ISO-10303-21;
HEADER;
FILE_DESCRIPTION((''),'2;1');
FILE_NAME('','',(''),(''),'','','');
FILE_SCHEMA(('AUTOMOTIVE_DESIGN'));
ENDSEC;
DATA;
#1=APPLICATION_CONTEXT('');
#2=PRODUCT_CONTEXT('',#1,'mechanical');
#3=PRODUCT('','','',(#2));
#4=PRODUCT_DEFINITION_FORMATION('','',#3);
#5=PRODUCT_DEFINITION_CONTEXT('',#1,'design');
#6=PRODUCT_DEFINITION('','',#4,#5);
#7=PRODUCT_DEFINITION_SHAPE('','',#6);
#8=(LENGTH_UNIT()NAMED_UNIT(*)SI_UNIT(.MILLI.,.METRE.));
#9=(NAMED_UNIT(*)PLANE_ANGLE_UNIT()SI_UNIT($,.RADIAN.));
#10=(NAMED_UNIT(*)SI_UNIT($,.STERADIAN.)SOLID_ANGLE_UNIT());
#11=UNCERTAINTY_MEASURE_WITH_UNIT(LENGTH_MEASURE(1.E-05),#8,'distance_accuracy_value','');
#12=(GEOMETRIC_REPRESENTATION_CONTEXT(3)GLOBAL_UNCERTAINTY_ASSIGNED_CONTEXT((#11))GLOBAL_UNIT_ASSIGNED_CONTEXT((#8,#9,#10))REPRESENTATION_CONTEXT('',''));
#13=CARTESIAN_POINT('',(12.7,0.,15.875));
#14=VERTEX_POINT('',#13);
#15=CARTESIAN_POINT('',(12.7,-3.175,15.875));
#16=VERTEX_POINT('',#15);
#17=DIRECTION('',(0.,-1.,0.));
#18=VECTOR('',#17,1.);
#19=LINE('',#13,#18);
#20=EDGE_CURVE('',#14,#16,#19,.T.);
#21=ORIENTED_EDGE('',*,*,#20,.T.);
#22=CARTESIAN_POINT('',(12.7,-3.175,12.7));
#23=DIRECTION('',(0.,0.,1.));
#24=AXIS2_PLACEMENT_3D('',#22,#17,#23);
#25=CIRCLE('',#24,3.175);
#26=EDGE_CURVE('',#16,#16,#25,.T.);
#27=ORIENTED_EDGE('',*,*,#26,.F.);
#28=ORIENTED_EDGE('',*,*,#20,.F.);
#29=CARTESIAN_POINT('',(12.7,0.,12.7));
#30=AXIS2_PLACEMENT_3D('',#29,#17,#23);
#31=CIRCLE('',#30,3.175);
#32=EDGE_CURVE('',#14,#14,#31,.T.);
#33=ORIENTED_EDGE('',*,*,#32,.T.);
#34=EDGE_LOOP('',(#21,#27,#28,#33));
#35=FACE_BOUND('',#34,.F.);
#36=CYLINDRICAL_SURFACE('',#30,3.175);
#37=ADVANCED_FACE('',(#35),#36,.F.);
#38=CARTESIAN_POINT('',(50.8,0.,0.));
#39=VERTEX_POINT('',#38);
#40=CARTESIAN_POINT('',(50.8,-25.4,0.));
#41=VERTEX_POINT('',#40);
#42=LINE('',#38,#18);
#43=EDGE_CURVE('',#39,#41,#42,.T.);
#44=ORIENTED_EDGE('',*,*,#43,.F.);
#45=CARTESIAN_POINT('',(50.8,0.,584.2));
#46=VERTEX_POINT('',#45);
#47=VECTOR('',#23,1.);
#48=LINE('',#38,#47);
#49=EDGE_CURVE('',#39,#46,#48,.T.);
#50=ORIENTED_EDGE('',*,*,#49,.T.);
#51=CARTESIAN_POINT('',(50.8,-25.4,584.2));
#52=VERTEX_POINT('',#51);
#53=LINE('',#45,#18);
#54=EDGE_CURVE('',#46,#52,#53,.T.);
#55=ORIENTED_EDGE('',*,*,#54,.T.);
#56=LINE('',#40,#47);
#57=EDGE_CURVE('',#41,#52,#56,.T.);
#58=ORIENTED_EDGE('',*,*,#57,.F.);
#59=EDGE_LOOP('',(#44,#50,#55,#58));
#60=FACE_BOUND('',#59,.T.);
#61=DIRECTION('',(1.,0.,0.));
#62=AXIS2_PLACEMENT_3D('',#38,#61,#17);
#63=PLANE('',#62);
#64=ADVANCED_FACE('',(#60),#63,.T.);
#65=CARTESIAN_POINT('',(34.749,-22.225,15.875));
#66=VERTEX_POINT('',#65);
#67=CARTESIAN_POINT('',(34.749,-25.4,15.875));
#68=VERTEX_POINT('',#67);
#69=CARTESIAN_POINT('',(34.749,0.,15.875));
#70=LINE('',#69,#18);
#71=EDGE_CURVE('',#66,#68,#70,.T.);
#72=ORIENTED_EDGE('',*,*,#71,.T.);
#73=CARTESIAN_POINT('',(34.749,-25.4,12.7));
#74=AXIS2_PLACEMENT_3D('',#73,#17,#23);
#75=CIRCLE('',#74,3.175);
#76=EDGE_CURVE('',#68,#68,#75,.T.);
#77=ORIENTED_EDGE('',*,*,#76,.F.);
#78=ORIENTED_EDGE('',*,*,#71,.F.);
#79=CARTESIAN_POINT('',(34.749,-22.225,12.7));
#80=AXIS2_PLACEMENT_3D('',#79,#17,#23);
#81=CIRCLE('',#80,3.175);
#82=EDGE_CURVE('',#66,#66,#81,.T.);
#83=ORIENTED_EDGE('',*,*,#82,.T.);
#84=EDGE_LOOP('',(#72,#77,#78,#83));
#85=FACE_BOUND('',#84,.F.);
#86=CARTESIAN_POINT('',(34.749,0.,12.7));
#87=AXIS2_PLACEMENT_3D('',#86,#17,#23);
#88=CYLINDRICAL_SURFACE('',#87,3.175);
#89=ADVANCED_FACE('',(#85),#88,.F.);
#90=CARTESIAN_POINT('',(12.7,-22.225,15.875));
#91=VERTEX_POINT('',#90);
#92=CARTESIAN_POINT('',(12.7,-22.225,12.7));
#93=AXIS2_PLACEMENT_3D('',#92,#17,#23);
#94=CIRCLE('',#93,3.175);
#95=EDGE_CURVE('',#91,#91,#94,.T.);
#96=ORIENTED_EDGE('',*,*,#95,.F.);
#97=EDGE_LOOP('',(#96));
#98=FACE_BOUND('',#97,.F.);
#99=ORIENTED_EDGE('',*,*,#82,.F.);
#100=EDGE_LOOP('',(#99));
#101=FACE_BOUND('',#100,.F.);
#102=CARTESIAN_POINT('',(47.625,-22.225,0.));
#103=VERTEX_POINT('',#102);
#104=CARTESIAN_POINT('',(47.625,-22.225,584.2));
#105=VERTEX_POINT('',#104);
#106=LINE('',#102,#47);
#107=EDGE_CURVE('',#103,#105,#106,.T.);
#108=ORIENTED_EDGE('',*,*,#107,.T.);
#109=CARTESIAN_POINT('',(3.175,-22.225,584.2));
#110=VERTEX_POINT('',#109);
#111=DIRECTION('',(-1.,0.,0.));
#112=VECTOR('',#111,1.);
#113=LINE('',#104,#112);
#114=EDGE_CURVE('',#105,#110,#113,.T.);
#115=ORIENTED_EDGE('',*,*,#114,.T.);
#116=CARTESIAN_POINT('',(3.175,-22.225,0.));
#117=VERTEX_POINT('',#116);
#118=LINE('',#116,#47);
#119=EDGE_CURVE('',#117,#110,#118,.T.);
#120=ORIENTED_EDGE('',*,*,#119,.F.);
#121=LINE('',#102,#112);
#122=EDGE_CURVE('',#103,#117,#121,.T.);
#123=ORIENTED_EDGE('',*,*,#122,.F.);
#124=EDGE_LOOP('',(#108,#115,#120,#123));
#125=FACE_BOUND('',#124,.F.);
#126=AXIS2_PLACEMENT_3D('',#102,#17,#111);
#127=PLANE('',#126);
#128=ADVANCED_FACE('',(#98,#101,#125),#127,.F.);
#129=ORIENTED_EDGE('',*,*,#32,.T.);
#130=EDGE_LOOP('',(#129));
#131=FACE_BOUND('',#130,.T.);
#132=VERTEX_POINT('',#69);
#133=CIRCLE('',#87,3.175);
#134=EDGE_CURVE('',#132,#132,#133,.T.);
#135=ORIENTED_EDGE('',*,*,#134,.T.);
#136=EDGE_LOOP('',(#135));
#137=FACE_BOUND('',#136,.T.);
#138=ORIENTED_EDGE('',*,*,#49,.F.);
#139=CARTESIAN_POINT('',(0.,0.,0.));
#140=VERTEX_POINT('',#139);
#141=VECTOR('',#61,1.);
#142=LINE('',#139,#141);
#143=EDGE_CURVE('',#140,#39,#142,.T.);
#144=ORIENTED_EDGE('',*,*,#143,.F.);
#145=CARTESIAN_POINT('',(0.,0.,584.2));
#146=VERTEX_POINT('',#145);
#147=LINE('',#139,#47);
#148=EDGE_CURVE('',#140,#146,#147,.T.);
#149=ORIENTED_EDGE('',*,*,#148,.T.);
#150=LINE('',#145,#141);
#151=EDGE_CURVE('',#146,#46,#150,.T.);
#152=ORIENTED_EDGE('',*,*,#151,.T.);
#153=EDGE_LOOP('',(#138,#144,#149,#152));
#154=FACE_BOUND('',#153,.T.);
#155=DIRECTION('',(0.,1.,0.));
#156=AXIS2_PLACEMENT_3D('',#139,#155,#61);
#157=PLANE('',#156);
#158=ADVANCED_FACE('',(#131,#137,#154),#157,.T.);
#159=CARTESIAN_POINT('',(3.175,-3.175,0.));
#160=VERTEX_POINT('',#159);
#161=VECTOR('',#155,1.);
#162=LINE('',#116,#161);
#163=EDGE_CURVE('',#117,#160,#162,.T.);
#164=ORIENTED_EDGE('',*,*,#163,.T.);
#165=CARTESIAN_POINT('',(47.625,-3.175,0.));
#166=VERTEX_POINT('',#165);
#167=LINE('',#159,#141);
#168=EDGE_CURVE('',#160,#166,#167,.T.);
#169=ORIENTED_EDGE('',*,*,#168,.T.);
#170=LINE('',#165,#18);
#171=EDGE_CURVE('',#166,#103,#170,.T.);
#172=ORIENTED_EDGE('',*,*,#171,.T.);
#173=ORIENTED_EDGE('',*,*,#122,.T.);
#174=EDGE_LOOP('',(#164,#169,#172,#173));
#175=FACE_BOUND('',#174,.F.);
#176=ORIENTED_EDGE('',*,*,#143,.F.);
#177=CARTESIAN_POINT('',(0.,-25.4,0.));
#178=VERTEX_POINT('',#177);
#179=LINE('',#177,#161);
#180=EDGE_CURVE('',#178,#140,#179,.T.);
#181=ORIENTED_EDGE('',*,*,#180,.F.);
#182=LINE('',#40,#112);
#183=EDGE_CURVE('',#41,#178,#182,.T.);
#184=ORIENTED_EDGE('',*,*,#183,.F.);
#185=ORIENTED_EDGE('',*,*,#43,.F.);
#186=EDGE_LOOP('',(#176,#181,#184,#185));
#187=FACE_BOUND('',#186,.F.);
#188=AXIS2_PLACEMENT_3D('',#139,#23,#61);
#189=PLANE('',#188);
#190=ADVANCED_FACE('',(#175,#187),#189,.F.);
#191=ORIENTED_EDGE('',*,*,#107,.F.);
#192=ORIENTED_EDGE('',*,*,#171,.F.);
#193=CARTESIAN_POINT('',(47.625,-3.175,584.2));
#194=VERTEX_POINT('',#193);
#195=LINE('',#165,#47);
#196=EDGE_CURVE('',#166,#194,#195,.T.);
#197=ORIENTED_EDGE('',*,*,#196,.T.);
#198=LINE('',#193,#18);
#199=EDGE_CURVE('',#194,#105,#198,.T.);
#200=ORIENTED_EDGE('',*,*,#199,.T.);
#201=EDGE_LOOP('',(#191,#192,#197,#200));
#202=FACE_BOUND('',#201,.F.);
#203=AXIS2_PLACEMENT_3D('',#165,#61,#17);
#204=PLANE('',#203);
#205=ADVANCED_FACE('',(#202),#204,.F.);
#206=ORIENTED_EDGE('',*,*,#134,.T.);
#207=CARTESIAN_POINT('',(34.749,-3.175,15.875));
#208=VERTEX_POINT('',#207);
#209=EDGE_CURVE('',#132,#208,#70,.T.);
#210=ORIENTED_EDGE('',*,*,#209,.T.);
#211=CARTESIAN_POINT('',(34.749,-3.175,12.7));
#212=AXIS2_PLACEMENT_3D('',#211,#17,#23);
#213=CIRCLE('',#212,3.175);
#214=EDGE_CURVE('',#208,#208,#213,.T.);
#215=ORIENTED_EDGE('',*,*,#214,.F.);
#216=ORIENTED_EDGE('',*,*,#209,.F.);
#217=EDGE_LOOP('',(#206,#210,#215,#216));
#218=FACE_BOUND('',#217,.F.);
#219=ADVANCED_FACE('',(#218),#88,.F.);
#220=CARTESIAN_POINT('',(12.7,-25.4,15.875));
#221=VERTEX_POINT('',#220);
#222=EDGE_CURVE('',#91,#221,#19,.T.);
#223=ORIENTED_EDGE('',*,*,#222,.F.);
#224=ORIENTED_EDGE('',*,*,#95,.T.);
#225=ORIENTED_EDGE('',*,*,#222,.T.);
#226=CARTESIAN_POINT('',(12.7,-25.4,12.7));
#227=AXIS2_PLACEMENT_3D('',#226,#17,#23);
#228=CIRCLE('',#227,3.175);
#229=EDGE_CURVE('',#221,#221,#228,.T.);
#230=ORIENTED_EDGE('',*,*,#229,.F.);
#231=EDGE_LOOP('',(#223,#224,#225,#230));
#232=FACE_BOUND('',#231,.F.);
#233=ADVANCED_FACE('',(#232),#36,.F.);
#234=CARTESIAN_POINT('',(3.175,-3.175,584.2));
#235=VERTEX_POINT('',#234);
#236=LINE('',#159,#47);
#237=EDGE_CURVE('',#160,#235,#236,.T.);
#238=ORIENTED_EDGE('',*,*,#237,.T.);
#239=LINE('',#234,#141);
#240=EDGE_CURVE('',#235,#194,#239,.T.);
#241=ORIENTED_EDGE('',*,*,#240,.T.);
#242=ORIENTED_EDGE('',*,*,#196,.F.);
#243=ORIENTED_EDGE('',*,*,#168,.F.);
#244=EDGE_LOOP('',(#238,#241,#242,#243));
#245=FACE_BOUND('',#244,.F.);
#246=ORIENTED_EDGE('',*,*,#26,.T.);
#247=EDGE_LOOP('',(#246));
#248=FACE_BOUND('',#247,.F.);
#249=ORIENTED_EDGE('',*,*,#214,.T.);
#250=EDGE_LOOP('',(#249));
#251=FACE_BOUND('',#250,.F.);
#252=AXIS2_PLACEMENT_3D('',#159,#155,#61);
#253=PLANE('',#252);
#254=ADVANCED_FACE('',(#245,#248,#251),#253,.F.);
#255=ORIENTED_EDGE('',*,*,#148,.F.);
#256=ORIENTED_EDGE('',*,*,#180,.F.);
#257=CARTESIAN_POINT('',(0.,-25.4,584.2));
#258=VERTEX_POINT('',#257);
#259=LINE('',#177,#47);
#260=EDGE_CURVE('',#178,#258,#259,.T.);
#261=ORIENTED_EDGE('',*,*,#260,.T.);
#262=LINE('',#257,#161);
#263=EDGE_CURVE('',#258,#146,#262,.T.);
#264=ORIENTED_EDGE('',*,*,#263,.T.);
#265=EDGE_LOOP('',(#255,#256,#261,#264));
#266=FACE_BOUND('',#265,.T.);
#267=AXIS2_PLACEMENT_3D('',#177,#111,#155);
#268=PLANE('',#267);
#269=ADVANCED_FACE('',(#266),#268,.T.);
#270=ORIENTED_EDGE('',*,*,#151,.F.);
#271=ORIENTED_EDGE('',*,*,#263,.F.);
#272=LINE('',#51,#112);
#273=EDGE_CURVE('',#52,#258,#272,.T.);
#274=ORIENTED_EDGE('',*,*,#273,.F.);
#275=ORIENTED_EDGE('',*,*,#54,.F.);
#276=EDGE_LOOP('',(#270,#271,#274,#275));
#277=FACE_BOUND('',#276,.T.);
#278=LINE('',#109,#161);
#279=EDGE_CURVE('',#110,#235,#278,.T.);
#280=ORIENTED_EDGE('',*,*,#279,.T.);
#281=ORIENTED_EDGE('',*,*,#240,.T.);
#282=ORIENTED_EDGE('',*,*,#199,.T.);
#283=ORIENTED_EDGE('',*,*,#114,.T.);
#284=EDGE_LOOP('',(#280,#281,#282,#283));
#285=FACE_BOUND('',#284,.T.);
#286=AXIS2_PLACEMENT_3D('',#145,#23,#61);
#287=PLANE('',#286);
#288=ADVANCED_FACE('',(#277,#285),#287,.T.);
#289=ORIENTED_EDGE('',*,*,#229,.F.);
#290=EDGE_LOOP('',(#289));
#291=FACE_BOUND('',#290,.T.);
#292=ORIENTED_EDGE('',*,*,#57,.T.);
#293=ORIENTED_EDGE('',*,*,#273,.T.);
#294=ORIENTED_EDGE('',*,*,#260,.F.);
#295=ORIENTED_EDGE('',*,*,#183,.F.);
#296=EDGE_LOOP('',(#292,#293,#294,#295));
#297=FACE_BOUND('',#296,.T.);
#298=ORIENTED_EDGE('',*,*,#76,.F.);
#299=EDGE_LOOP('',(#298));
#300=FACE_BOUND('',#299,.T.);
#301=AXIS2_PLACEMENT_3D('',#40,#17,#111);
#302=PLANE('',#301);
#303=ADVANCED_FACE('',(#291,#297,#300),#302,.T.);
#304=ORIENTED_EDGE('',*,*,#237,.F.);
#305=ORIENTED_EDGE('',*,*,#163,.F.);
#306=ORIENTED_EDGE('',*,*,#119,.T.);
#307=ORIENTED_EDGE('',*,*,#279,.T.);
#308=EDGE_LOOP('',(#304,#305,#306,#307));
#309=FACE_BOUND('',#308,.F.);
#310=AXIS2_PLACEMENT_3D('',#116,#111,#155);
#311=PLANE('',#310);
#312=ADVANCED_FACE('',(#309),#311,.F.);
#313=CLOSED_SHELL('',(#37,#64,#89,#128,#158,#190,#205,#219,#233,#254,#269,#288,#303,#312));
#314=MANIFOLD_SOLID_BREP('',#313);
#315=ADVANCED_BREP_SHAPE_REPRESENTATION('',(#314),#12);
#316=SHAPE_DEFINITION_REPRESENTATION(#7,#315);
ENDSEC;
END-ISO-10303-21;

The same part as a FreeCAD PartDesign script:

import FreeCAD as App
import Part
import Sketcher
from FreeCAD import Vector
Q = App.Units.Quantity


def add_polygon(sketch, points):
    """Adds a closed chain of lines whose ends are joined by coincident constraints."""
    first, n = sketch.GeometryCount, len(points)
    for a, b in zip(points, points[1:] + points[:1]):
        sketch.addGeometry(Part.LineSegment(App.Vector(*a, 0), App.Vector(*b, 0)), False)
    for i in range(n):
        sketch.addConstraint(Sketcher.Constraint("Coincident", first + i, 2, first + (i + 1) % n, 1))

doc = App.newDocument("Part")
params = doc.addObject("Spreadsheet::Sheet", "Params")
for row, (alias, value) in enumerate([
    ("sketch1_width", "2 in"),
    ("sketch1_height", "1 in"),
    ("sketch1_width2", "1.75 in"),
    ("sketch1_height2", "0.75 in"),
    ("pad1_length", "23 in"),
    ("sketch2_diameter", "0.25 in"),
    ("hole_diameter", "0.25 in"),
    ("hole_depth", "1 in"),
], start=1):
    params.set(f"A{row}", alias)
    params.set(f"B{row}", "=" + value)
    params.setAlias(f"B{row}", alias)

body = doc.addObject("PartDesign::Body", "Body")

sketch1 = body.newObject("Sketcher::SketchObject", "Sketch")
sketch1.AttachmentSupport = (doc.getObject("XY_Plane"), [""])
sketch1.MapMode = "FlatFace"
add_polygon(sketch1, [(51, 0), (0, 0), (0, -25), (51, -25)])
add_polygon(sketch1, [(3, -22), (3, -3), (48, -3), (48, -22)])
sketch1.addConstraint([
    Sketcher.Constraint("Horizontal", 0),
    Sketcher.Constraint("Vertical", 1),
    Sketcher.Constraint("Horizontal", 2),
    Sketcher.Constraint("Vertical", 3),
    Sketcher.Constraint("Vertical", 4),
    Sketcher.Constraint("Horizontal", 5),
    Sketcher.Constraint("Vertical", 6),
    Sketcher.Constraint("Horizontal", 7),
    Sketcher.Constraint("Coincident", 0, 2, -1, 1),
    Sketcher.Constraint("DistanceX", 0, 2, 0, 1, Q("2 in")),
    Sketcher.Constraint("DistanceY", 1, 2, 1, 1, Q("1 in")),
    Sketcher.Constraint("DistanceX", 5, 1, 5, 2, Q("1.75 in")),
    Sketcher.Constraint("DistanceY", 4, 1, 4, 2, Q("0.75 in")),
    Sketcher.Constraint("DistanceX", -1, 1, 4, 2, Q("0.125 in")),
    Sketcher.Constraint("DistanceY", 4, 2, -1, 1, Q("0.125 in")),
])
sketch1.setExpression("Constraints[17]", "Params.sketch1_width")
sketch1.setExpression("Constraints[18]", "Params.sketch1_height")
sketch1.setExpression("Constraints[19]", "Params.sketch1_width2")
sketch1.setExpression("Constraints[20]", "Params.sketch1_height2")
pad1 = body.newObject("PartDesign::Pad", "Pad")
pad1.Profile = sketch1
pad1.setExpression("Length", "Params.pad1_length")

sketch2 = body.newObject("Sketcher::SketchObject", "Sketch001")
sketch2.AttachmentSupport = (doc.getObject("XZ_Plane"), [""])
sketch2.MapMode = "FlatFace"
sketch2.addGeometry([
    Part.Circle(Vector(12.7, 609.6, 0), Vector(0, 0, 1), 3.2),
    Part.Circle(Vector(34.7, 609.6, 0), Vector(0, 0, 1), 3.2),
    Part.Circle(Vector(12.7, 12.7, 0), Vector(0, 0, 1), 3.2),
    Part.Circle(Vector(34.7, 12.7, 0), Vector(0, 0, 1), 3.2),
], False)
sketch2.addConstraint([
    Sketcher.Constraint("Equal", 0, 1),
    Sketcher.Constraint("Equal", 1, 2),
    Sketcher.Constraint("Equal", 2, 3),
    Sketcher.Constraint("Horizontal", 0, 3, 1, 3),
    Sketcher.Constraint("Horizontal", 2, 3, 3, 3),
    Sketcher.Constraint("Vertical", 0, 3, 2, 3),
    Sketcher.Constraint("Vertical", 1, 3, 3, 3),
    Sketcher.Constraint("Diameter", 0, Q("0.25 in")),
    Sketcher.Constraint("DistanceY", -1, 1, 0, 3, Q("24 in")),
    Sketcher.Constraint("DistanceX", -1, 1, 0, 3, Q("0.5 in")),
    Sketcher.Constraint("DistanceY", -1, 1, 2, 3, Q("0.5 in")),
    Sketcher.Constraint("DistanceX", -1, 1, 1, 3, Q("34.749 mm")),
])
sketch2.setExpression("Constraints[7]", "Params.sketch2_diameter")
doc.recompute()
hole = body.newObject("PartDesign::Hole", "Hole")
hole.Profile = sketch2
hole.ThreadType = "None"
hole.setExpression("Diameter", "Params.hole_diameter")
hole.DepthType = "Dimension"
hole.setExpression("Depth", "Params.hole_depth")
hole.DrillPoint = "Angled"
hole.DrillPointAngle = 118
hole.Reversed = True

doc.recompute()
